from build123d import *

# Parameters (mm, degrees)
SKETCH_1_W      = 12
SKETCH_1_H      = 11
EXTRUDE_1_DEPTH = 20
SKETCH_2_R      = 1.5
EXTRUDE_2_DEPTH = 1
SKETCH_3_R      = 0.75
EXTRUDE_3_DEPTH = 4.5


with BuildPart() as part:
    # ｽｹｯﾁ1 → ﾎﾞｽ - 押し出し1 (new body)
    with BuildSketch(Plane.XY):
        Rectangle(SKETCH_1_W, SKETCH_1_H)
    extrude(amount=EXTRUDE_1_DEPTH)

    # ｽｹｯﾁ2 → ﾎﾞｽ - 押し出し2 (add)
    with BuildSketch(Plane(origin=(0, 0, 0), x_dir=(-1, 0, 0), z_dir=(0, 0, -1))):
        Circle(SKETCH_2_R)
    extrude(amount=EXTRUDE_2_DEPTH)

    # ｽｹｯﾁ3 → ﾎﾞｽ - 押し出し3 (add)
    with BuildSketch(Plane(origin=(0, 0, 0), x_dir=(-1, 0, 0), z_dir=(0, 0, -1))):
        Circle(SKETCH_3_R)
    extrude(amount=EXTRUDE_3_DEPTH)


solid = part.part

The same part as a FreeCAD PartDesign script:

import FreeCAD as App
import Part
import Sketcher
from FreeCAD import Vector
Q = App.Units.Quantity


def add_polygon(sketch, points):
    """Adds a closed chain of lines whose ends are joined by coincident constraints."""
    first, n = sketch.GeometryCount, len(points)
    for a, b in zip(points, points[1:] + points[:1]):
        sketch.addGeometry(Part.LineSegment(App.Vector(*a, 0), App.Vector(*b, 0)), False)
    for i in range(n):
        sketch.addConstraint(Sketcher.Constraint("Coincident", first + i, 2, first + (i + 1) % n, 1))

doc = App.newDocument("Part")
body = doc.addObject("PartDesign::Body", "Body")

# Sketch on XY plane
sketch1 = body.newObject("Sketcher::SketchObject", "Sketch")
sketch1.AttachmentSupport = (doc.getObject("XY_Plane"), [""])
sketch1.MapMode = "FlatFace"
add_polygon(sketch1, [(-6, 6), (-6, -6), (6, -6), (6, 6)])  # lines 0-3
sketch1.addConstraint([
    Sketcher.Constraint("Vertical", 0),
    Sketcher.Constraint("Horizontal", 1),
    Sketcher.Constraint("Vertical", 2),
    Sketcher.Constraint("Horizontal", 3),
    Sketcher.Constraint("Symmetric", 0, 2, 2, 2, -1, 1),
    Sketcher.Constraint("DistanceX", 1, 1, 1, 2, Q("12 mm")),
    Sketcher.Constraint("DistanceY", 0, 2, 0, 1, Q("11 mm")),
])
pad1 = body.newObject("PartDesign::Pad", "Pad")
pad1.Profile = sketch1
pad1.Length = 20

# Sketch on XY plane
sketch2 = body.newObject("Sketcher::SketchObject", "Sketch001")
sketch2.AttachmentSupport = (doc.getObject("XY_Plane"), [""])
sketch2.MapMode = "FlatFace"
sketch2.addGeometry(Part.Circle(Vector(0, 0, 0), Vector(0, 0, 1), 1.5), False)
sketch2.addConstraint([
    Sketcher.Constraint("Coincident", 0, 3, -1, 1),
    Sketcher.Constraint("Diameter", 0, Q("3 mm")),
])
pad2 = body.newObject("PartDesign::Pad", "Pad001")
pad2.Profile = sketch2
pad2.Length = 1
pad2.Reversed = True

# Sketch on XY plane
sketch3 = body.newObject("Sketcher::SketchObject", "Sketch002")
sketch3.AttachmentSupport = (doc.getObject("XY_Plane"), [""])
sketch3.MapMode = "FlatFace"
sketch3.addGeometry(Part.Circle(Vector(0, 0, 0), Vector(0, 0, 1), 0.8), False)
sketch3.addConstraint([
    Sketcher.Constraint("Coincident", 0, 3, -1, 1),
    Sketcher.Constraint("Diameter", 0, Q("1.5 mm")),
])
pad3 = body.newObject("PartDesign::Pad", "Pad002")
pad3.Profile = sketch3
pad3.Length = 4.5
pad3.Reversed = True

doc.recompute()
